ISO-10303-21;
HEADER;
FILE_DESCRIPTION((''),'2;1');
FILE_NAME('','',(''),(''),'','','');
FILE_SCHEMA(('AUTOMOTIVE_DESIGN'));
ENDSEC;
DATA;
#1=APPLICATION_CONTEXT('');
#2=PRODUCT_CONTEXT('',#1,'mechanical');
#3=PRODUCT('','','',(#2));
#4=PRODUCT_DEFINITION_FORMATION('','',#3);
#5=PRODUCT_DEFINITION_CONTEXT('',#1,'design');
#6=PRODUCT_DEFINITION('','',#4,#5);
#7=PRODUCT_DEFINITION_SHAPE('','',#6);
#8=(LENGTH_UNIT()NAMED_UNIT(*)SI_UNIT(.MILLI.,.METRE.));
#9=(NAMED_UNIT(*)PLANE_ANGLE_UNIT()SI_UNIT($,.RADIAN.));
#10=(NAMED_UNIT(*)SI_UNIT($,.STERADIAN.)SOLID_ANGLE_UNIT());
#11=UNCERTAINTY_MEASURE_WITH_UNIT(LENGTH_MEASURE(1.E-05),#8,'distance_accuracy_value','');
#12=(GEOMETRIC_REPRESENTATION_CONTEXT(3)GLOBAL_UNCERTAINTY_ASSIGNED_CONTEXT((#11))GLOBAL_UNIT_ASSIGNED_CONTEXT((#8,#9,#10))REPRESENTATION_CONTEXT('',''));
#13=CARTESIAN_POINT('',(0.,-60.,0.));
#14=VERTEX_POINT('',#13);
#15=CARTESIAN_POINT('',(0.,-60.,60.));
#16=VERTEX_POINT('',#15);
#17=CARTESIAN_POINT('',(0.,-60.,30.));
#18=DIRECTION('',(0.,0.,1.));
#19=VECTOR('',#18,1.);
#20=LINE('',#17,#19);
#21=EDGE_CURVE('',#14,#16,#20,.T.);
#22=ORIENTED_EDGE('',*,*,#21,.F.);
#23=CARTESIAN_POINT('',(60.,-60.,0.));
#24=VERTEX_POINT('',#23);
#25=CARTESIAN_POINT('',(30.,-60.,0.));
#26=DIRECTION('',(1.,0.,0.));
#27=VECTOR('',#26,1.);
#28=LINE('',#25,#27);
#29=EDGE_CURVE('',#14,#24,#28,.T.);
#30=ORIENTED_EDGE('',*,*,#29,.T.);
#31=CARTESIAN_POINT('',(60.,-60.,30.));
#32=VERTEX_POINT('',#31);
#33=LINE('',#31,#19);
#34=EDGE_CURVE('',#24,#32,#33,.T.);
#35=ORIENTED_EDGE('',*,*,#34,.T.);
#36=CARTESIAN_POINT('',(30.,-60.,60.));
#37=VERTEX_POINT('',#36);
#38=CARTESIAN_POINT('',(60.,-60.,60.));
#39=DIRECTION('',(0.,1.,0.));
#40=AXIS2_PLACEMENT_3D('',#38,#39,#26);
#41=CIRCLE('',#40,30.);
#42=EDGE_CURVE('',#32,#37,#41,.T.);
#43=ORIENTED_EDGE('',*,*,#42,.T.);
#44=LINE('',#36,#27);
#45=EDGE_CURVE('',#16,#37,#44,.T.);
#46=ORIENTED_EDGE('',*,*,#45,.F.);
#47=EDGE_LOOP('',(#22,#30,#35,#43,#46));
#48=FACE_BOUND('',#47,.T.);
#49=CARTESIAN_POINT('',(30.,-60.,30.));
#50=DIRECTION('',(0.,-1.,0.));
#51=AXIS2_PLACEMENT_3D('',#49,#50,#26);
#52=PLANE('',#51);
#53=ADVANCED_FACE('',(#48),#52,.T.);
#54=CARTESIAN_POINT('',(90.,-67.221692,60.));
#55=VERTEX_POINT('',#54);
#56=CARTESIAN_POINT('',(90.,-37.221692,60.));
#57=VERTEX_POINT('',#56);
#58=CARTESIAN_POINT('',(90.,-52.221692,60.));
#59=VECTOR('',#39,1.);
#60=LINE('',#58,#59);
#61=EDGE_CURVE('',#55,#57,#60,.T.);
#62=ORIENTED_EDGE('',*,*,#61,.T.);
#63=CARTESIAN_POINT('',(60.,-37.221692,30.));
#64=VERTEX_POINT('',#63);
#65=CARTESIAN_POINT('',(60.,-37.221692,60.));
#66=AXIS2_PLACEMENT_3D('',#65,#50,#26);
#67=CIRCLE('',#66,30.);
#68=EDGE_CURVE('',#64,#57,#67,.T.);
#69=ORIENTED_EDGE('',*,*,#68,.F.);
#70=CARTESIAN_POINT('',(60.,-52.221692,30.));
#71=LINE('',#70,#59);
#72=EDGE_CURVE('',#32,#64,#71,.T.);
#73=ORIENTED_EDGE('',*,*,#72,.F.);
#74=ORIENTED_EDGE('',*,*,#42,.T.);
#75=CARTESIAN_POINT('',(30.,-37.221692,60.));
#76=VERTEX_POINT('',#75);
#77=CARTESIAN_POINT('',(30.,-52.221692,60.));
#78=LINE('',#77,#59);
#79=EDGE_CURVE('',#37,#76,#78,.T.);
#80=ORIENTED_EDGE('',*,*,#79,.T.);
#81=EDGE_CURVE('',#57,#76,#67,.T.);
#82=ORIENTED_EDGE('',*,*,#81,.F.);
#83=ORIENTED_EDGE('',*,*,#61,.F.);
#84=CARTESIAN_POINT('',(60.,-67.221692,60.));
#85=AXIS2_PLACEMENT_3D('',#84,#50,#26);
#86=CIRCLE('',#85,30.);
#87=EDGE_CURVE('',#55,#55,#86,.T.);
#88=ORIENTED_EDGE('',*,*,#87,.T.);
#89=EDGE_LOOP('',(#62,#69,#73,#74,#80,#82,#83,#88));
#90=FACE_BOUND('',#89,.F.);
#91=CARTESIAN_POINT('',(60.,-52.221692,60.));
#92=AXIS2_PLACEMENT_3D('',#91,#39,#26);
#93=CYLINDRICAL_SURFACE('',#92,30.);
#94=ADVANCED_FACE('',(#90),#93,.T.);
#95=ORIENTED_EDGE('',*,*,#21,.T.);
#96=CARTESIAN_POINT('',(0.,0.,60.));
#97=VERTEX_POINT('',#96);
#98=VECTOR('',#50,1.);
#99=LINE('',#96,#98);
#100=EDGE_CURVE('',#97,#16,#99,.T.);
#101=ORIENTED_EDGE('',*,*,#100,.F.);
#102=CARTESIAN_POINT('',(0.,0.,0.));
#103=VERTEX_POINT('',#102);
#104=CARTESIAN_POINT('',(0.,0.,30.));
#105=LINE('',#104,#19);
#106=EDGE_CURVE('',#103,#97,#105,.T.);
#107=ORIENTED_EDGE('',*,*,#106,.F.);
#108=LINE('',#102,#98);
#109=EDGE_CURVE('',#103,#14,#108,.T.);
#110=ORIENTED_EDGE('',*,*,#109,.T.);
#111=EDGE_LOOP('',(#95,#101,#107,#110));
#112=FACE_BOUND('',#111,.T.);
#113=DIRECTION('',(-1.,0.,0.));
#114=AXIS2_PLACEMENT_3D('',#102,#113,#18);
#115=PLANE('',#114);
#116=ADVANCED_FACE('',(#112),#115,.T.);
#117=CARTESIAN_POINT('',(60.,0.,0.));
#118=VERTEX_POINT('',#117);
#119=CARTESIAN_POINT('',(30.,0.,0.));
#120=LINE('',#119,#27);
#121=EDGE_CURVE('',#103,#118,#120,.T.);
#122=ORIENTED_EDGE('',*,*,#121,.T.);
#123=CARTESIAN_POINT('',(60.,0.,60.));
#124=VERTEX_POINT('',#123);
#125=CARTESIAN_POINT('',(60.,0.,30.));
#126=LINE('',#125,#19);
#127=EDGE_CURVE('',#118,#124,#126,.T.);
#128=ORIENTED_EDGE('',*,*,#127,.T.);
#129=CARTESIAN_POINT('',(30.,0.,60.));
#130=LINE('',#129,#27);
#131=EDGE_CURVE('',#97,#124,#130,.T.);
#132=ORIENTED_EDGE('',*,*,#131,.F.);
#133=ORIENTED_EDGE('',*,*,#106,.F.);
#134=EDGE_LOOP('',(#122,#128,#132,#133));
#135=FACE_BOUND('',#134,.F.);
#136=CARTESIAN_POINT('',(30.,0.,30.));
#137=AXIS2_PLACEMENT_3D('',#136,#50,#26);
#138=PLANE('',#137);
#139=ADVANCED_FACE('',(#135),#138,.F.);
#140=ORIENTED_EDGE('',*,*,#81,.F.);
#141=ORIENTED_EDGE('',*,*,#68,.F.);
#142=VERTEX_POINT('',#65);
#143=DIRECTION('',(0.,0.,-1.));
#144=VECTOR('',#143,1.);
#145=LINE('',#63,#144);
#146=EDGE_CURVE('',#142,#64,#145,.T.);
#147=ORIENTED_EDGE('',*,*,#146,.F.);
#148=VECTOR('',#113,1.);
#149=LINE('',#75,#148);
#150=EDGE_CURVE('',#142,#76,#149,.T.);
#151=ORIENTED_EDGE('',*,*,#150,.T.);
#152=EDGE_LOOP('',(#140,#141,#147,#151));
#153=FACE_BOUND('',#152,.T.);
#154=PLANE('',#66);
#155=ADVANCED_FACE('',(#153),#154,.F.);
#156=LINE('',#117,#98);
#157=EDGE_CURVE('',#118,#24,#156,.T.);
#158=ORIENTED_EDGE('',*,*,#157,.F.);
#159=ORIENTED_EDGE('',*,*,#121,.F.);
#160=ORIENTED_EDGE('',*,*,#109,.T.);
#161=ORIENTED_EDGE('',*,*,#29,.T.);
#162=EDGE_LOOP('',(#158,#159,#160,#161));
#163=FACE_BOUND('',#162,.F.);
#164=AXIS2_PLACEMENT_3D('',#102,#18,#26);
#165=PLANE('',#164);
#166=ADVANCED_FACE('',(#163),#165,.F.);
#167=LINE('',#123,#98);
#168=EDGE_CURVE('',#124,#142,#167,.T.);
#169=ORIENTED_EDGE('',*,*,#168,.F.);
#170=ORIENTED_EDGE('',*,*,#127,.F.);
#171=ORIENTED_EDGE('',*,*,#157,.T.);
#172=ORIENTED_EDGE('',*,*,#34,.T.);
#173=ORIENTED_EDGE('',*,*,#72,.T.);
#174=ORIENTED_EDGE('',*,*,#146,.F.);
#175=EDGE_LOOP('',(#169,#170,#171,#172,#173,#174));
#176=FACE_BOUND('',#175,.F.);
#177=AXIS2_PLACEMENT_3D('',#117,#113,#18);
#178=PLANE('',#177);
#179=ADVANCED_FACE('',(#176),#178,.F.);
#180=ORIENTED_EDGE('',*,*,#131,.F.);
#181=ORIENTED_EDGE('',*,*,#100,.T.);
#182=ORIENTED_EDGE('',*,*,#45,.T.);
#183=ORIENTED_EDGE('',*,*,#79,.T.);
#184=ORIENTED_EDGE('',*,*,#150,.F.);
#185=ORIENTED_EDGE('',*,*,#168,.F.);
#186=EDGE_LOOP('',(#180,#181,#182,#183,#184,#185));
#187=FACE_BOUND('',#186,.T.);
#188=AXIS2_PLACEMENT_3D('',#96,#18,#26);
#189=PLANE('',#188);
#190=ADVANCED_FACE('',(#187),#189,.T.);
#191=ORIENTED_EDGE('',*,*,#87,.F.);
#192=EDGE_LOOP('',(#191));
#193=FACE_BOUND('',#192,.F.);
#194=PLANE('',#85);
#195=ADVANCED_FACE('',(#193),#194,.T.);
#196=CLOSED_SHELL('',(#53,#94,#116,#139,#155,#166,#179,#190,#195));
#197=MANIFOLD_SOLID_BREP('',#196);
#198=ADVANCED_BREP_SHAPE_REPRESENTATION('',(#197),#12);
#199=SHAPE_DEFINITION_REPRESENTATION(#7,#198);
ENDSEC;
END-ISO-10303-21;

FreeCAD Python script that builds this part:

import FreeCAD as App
import Part
import Sketcher
from FreeCAD import Vector


def add_polygon(sketch, points):
    """Adds a closed chain of lines whose ends are joined by coincident constraints."""
    first, n = sketch.GeometryCount, len(points)
    for a, b in zip(points, points[1:] + points[:1]):
        sketch.addGeometry(Part.LineSegment(App.Vector(*a, 0), App.Vector(*b, 0)), False)
    for i in range(n):
        sketch.addConstraint(Sketcher.Constraint("Coincident", first + i, 2, first + (i + 1) % n, 1))

doc = App.newDocument("Part")
params = doc.addObject("Spreadsheet::Sheet", "Params")
for row, (alias, value) in enumerate([
    ("sketch1_width", "60 mm"),
    ("pad1_length", "60 mm"),
    ("sketch2_width", "30 mm"),
    ("revolution_angle", "360 deg"),
], start=1):
    params.set(f"A{row}", alias)
    params.set(f"B{row}", "=" + value)
    params.setAlias(f"B{row}", alias)

body = doc.addObject("PartDesign::Body", "Body")

sketch1 = doc.addObject("Sketcher::SketchObject", "Sketch")
body.addObject(sketch1)
sketch1.AttachmentSupport = (doc.XZ_Plane, [""])
sketch1.MapMode = "FlatFace"
add_polygon(sketch1, [(0, 60), (0, 0), (60, 0), (60, 60)])
sketch1.addConstraint(Sketcher.Constraint("Vertical", 0))
sketch1.addConstraint(Sketcher.Constraint("Horizontal", 1))
sketch1.addConstraint(Sketcher.Constraint("Vertical", 2))
sketch1.addConstraint(Sketcher.Constraint("Horizontal", 3))
sketch1.addConstraint(Sketcher.Constraint("Coincident", 0, 2, -1, 1))
sketch1.addConstraint(Sketcher.Constraint("Equal", 3, 0))
sketch1.addConstraint(Sketcher.Constraint("DistanceX", 1, 1, 1, 2, 60.0))
sketch1.setExpression("Constraints[10]", "Params.sketch1_width")
pad1 = doc.addObject("PartDesign::Pad", "Pad")
body.addObject(pad1)
pad1.Profile = sketch1
pad1.setExpression("Length", "Params.pad1_length")

sketch2 = doc.addObject("Sketcher::SketchObject", "Sketch001")
body.addObject(sketch2)
sketch2.AttachmentSupport = (doc.XY_Plane, [""])
sketch2.MapMode = "FlatFace"
sketch2.AttachmentOffset = App.Placement(Vector(0, 0, 60), App.Rotation())
add_polygon(sketch2, [(60, -37.221692), (60, -67.221692), (90, -67.221692), (90, -37.221692)])
sketch2.addGeometry(Part.LineSegment(Vector(60, -37.221692, 0), Vector(60, -67.221692, 0)), True)
sketch2.addConstraint(Sketcher.Constraint("Vertical", 0))
sketch2.addConstraint(Sketcher.Constraint("Horizontal", 1))
sketch2.addConstraint(Sketcher.Constraint("Vertical", 2))
sketch2.addConstraint(Sketcher.Constraint("Horizontal", 3))
sketch2.addConstraint(Sketcher.Constraint("Vertical", 4))
sketch2.addConstraint(Sketcher.Constraint("Coincident", 4, 1, 3, 2))
sketch2.addConstraint(Sketcher.Constraint("Horizontal", 1, 2, 4, 2))
sketch2.addConstraint(Sketcher.Constraint("Equal", 3, 0))
sketch2.addConstraint(Sketcher.Constraint("DistanceX", 1, 1, 1, 2, 30.0))
sketch2.addConstraint(Sketcher.Constraint("DistanceX", -1, 1, 0, 2, 60.0))
sketch2.addConstraint(Sketcher.Constraint("DistanceY", 2, 2, -1, 1, 37.221692))
sketch2.setExpression("Constraints[12]", "Params.sketch2_width")
revolution = doc.addObject("PartDesign::Revolution", "Revolution")
body.addObject(revolution)
revolution.Profile = sketch2
revolution.ReferenceAxis = (sketch2, ["Axis0"])
revolution.setExpression("Angle", "Params.revolution_angle")

doc.recompute()
